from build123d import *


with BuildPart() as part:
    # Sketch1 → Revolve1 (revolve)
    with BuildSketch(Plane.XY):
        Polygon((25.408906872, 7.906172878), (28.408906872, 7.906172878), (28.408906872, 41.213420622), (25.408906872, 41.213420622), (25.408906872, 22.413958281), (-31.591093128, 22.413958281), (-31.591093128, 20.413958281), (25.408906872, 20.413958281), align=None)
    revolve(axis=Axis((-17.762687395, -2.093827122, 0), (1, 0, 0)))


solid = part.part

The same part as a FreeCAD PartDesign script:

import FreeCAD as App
import Part
import Sketcher

V = App.Vector
Q = App.Units.Quantity


def add_polygon(sketch, points):
    """Adds a closed chain of lines whose ends are joined by coincident constraints."""
    first, n = sketch.GeometryCount, len(points)
    for a, b in zip(points, points[1:] + points[:1]):
        sketch.addGeometry(Part.LineSegment(App.Vector(*a, 0), App.Vector(*b, 0)), False)
    for i in range(n):
        sketch.addConstraint(Sketcher.Constraint("Coincident", first + i, 2, first + (i + 1) % n, 1))

doc = App.newDocument("Part")
body = doc.addObject("PartDesign::Body", "Body")

sketch1 = body.newObject("Sketcher::SketchObject", "Sketch")
sketch1.AttachmentSupport = (doc.getObject("XY_Plane"), [""])
sketch1.MapMode = "FlatFace"
add_polygon(sketch1, [(25.4, 7.9), (28.4, 7.9), (28.4, 41.2), (25.4, 41.2), (25.4, 22.4), (-31.6, 22.4), (-31.6, 20.4), (25.4, 20.4)])
sketch1.addGeometry(Part.LineSegment(V(-31.6, -2.1, 0), V(28.4, -2.1, 0)), True)
sketch1.addConstraint(Sketcher.Constraint("Horizontal", 0))
sketch1.addConstraint(Sketcher.Constraint("Vertical", 1))
sketch1.addConstraint(Sketcher.Constraint("Horizontal", 2))
sketch1.addConstraint(Sketcher.Constraint("Vertical", 3))
sketch1.addConstraint(Sketcher.Constraint("Horizontal", 4))
sketch1.addConstraint(Sketcher.Constraint("Vertical", 5))
sketch1.addConstraint(Sketcher.Constraint("Horizontal", 6))
sketch1.addConstraint(Sketcher.Constraint("Vertical", 7))
sketch1.addConstraint(Sketcher.Constraint("Horizontal", 8))
sketch1.addConstraint(Sketcher.Constraint("Vertical", 3, 2, 6, 2))
sketch1.addConstraint(Sketcher.Constraint("Vertical", 5, 2, 8, 1))
sketch1.addConstraint(Sketcher.Constraint("Vertical", 1, 2, 8, 2))
sketch1.addConstraint(Sketcher.Constraint("DistanceX", 0, 1, 0, 2, Q("3 mm")))
sketch1.addConstraint(Sketcher.Constraint("DistanceX", 4, 2, 4, 1, Q("57 mm")))
sketch1.addConstraint(Sketcher.Constraint("DistanceY", 5, 2, 5, 1, Q("2 mm")))
sketch1.addConstraint(Sketcher.Constraint("DistanceY", 8, 1, 7, 2, Q("10 mm")))
sketch1.addConstraint(Sketcher.Constraint("DistanceY", 1, 1, 1, 2, Q("33.307248 mm")))
sketch1.addConstraint(Sketcher.Constraint("DistanceY", 3, 2, 3, 1, Q("18.799462 mm")))
sketch1.addConstraint(Sketcher.Constraint("DistanceY", -1, 1, 1, 2, Q("41.213421 mm")))
sketch1.addConstraint(Sketcher.Constraint("DistanceX", -1, 1, 0, 2, Q("28.408907 mm")))
revolution = body.newObject("PartDesign::Revolution", "Revolution")
revolution.Profile = sketch1
revolution.ReferenceAxis = (sketch1, ["Axis0"])
revolution.Angle = 360

doc.recompute()
